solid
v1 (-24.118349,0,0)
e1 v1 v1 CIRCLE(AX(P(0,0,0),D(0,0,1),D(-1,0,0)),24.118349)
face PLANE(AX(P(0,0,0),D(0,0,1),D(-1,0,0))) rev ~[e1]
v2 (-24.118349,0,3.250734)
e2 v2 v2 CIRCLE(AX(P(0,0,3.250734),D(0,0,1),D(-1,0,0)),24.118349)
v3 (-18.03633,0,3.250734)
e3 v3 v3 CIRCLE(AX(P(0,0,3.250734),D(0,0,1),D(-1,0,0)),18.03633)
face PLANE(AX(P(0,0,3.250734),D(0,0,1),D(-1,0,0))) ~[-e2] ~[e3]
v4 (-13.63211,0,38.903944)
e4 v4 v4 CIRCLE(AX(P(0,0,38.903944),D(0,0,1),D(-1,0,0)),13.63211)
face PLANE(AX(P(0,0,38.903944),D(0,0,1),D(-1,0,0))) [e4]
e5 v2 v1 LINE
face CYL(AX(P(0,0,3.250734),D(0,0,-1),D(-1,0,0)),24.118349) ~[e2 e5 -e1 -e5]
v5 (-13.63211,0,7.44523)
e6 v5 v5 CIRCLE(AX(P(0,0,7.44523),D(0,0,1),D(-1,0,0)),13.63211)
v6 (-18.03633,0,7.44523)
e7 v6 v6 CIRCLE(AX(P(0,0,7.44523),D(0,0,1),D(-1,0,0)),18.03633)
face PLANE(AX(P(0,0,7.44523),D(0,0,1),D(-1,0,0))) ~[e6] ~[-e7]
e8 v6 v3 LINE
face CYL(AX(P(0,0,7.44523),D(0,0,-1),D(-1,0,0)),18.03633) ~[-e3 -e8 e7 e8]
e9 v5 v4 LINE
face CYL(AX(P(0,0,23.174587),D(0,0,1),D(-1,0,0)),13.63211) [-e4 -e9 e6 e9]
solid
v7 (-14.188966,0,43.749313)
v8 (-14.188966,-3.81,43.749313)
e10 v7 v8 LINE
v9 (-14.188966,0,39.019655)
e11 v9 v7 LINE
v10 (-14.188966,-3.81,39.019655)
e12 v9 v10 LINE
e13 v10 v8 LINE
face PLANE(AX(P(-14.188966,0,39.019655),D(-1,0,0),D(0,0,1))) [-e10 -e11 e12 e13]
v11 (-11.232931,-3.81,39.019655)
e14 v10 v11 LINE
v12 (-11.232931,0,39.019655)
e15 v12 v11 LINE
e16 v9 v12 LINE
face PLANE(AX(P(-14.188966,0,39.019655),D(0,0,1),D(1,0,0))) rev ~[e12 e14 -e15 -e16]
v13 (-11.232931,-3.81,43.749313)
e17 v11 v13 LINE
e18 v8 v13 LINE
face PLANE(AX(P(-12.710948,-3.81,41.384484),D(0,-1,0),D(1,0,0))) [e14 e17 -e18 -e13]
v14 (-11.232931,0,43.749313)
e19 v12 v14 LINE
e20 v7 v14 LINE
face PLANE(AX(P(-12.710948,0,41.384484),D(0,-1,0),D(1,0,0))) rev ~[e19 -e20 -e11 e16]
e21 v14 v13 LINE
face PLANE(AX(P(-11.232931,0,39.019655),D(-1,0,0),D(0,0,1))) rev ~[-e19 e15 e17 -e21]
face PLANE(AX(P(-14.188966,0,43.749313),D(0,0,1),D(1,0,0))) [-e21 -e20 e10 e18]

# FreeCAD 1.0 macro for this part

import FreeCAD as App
import Part
import Sketcher

V = App.Vector
Q = App.Units.Quantity


def add_polygon(sketch, points):
    """Adds a closed chain of lines whose ends are joined by coincident constraints."""
    first, n = sketch.GeometryCount, len(points)
    for a, b in zip(points, points[1:] + points[:1]):
        sketch.addGeometry(Part.LineSegment(App.Vector(*a, 0), App.Vector(*b, 0)), False)
    for i in range(n):
        sketch.addConstraint(Sketcher.Constraint("Coincident", first + i, 2, first + (i + 1) % n, 1))

doc = App.newDocument("Part")
body = doc.addObject("PartDesign::Body", "Body")

# Sketch on XZ plane
sketch1 = body.newObject("Sketcher::SketchObject", "Sketch")
sketch1.AttachmentSupport = (doc.getObject("XZ_Plane"), [""])
sketch1.MapMode = "FlatFace"
add_polygon(sketch1, [(-13.6, 38.9), (-13.6, 7.4), (-18, 7.4), (-18, 3.3), (-24.1, 3.3), (-24.1, 0), (0, 0), (0, 38.9)])  # lines 0-7
sketch1.addConstraint([
    Sketcher.Constraint("Vertical", 0),
    Sketcher.Constraint("Horizontal", 1),
    Sketcher.Constraint("Vertical", 2),
    Sketcher.Constraint("Horizontal", 3),
    Sketcher.Constraint("Vertical", 4),
    Sketcher.Constraint("Horizontal", 5),
    Sketcher.Constraint("Vertical", 6),
    Sketcher.Constraint("Horizontal", 7),
    Sketcher.Constraint("Coincident", 5, 2, -1, 1),
    Sketcher.Constraint("DistanceX", 1, 2, 1, 1, Q("4.40422 mm")),
    Sketcher.Constraint("DistanceX", 3, 2, 3, 1, Q("6.082019 mm")),
    Sketcher.Constraint("DistanceX", 5, 1, 5, 2, Q("24.118349 mm")),
    Sketcher.Constraint("DistanceY", 0, 2, 0, 1, Q("31.458714 mm")),
    Sketcher.Constraint("DistanceY", 2, 2, 2, 1, Q("4.194496 mm")),
    Sketcher.Constraint("DistanceY", 4, 2, 4, 1, Q("3.250734 mm")),
])
revolution = body.newObject("PartDesign::Revolution", "Revolution")
revolution.Profile = sketch1
revolution.ReferenceAxis = (sketch1, ["V_Axis"])
revolution.Angle = 360
body2 = doc.addObject("PartDesign::Body", "Body001")

# Sketch on XZ plane
sketch2 = body2.newObject("Sketcher::SketchObject", "Sketch001")
sketch2.AttachmentSupport = (doc.getObject("XZ_Plane001"), [""])
sketch2.MapMode = "FlatFace"
add_polygon(sketch2, [(-14.2, 43.7), (-14.2, 39), (-11.2, 39), (-11.2, 43.7)])  # lines 0-3
sketch2.addConstraint([
    Sketcher.Constraint("Vertical", 0),
    Sketcher.Constraint("Horizontal", 1),
    Sketcher.Constraint("Vertical", 2),
    Sketcher.Constraint("Horizontal", 3),
    Sketcher.Constraint("DistanceY", 0, 2, 0, 1, Q("4.729659 mm")),
    Sketcher.Constraint("DistanceX", 1, 1, 1, 2, Q("2.956035 mm")),
    Sketcher.Constraint("DistanceX", 1, 2, -1, 1, Q("11.232931 mm")),
    Sketcher.Constraint("DistanceY", -1, 1, 0, 2, Q("39.019655 mm")),
])
pad1 = body2.newObject("PartDesign::Pad", "Pad")
pad1.Profile = sketch2
pad1.Length = Q("0.15 in")

doc.recompute()
